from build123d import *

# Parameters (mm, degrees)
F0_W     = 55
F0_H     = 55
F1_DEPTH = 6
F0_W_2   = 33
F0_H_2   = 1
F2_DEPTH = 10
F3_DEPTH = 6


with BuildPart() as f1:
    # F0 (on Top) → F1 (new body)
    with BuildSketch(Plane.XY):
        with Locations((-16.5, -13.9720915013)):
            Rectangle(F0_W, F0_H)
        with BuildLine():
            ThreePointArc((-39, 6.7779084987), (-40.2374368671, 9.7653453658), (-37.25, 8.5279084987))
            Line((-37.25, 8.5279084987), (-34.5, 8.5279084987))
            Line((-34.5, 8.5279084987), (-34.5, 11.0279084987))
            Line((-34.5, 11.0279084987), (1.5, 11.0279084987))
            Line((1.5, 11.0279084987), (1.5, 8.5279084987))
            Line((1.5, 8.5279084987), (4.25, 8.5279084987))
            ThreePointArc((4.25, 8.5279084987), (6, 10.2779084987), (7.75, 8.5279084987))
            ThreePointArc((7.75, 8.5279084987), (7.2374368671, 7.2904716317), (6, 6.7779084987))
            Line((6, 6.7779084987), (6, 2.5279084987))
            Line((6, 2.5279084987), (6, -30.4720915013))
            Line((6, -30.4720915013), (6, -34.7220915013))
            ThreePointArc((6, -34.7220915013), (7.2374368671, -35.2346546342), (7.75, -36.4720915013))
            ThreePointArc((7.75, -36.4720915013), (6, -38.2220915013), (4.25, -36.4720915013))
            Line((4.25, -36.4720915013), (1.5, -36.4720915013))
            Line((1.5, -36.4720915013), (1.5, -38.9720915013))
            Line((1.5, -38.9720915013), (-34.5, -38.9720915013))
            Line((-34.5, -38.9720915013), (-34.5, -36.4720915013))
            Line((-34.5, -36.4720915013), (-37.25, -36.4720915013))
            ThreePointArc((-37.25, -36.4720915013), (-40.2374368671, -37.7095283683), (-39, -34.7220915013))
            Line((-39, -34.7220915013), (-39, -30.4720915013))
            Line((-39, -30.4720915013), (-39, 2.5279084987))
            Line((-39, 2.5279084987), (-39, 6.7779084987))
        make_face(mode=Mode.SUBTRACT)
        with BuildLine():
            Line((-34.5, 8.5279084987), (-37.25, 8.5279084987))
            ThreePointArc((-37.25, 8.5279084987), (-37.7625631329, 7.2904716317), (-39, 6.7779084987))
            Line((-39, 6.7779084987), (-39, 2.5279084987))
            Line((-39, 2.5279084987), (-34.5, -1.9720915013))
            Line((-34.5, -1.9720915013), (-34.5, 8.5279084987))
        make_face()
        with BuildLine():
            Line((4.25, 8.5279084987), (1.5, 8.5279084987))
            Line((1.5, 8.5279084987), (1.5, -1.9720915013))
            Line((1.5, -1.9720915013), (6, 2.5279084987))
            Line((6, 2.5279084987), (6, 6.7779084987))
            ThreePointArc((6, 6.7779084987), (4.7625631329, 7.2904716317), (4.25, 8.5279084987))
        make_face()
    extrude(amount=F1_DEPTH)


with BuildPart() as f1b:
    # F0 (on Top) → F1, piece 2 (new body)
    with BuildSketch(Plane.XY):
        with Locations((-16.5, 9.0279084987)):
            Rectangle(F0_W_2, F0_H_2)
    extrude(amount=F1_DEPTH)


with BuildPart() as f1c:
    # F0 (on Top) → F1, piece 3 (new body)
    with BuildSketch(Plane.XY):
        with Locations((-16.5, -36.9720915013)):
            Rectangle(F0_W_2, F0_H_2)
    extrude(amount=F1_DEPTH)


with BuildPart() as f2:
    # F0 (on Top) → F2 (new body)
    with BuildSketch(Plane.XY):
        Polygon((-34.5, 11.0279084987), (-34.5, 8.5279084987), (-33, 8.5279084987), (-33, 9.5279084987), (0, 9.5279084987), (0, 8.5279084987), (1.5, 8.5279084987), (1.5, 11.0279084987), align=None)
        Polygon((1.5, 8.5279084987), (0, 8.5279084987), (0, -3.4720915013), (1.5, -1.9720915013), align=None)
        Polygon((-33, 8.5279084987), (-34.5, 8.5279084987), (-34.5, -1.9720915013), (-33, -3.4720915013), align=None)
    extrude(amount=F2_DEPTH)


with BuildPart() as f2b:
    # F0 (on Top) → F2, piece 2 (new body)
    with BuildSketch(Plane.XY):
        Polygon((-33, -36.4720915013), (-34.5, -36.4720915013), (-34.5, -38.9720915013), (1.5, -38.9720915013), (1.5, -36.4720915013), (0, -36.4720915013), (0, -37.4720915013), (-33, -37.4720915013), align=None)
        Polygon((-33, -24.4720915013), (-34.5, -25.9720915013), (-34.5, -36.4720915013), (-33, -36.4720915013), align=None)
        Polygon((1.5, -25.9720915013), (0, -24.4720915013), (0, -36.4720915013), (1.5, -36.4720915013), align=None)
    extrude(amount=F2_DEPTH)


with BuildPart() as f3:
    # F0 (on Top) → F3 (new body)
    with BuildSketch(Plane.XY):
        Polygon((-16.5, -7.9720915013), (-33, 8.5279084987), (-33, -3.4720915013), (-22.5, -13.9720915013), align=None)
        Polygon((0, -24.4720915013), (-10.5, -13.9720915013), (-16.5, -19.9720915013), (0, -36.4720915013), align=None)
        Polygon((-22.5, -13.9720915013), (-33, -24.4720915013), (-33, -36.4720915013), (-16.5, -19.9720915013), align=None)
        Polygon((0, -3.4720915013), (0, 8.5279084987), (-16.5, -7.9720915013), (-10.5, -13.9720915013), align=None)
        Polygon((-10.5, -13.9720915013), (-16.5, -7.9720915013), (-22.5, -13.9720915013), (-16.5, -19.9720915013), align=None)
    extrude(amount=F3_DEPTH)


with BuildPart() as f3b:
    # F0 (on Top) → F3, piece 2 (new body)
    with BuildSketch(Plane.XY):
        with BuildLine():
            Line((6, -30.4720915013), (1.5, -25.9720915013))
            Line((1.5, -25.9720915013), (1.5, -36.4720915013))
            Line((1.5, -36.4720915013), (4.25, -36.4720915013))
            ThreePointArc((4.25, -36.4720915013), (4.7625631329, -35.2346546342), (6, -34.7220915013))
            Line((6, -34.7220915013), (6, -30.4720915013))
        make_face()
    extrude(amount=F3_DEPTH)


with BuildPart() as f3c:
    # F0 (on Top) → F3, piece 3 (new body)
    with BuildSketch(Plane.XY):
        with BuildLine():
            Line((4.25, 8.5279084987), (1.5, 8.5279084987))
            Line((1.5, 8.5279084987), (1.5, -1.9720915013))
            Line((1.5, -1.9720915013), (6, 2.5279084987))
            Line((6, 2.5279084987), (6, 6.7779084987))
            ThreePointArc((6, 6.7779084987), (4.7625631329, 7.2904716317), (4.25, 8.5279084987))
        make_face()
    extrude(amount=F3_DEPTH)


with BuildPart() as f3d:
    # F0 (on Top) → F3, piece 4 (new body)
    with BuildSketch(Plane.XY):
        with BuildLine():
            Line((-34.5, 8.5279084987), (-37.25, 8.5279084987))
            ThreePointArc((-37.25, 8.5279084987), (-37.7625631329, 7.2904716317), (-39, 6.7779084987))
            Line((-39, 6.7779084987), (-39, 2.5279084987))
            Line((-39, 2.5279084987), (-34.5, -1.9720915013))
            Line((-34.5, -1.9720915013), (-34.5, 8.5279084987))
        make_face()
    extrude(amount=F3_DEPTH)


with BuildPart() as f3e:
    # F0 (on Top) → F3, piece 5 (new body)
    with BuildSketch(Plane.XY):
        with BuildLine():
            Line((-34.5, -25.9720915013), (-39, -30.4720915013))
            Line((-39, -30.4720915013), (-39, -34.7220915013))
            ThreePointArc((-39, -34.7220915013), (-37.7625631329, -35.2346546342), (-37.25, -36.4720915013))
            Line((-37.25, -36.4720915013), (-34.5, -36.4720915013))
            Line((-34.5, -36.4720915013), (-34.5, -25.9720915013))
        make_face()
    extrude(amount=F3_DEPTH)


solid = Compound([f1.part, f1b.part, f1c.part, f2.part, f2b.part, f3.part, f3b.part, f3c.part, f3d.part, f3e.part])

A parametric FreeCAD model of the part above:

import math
import FreeCAD as App
import Part
import Sketcher

V = App.Vector
Q = App.Units.Quantity


def add_polygon(sketch, points):
    """Adds a closed chain of lines whose ends are joined by coincident constraints."""
    first, n = sketch.GeometryCount, len(points)
    for a, b in zip(points, points[1:] + points[:1]):
        sketch.addGeometry(Part.LineSegment(App.Vector(*a, 0), App.Vector(*b, 0)), False)
    for i in range(n):
        sketch.addConstraint(Sketcher.Constraint("Coincident", first + i, 2, first + (i + 1) % n, 1))

doc = App.newDocument("Part")
body = doc.addObject("PartDesign::Body", "Body")

# Sketch on XY plane
sketch1 = body.newObject("Sketcher::SketchObject", "Sketch")
sketch1.AttachmentSupport = (doc.getObject("XY_Plane"), [""])
sketch1.MapMode = "FlatFace"
add_polygon(sketch1, [(-44, 13.5), (-44, -41.5), (11, -41.5), (11, 13.5)])  # lines 0-3
sketch1.addGeometry(Part.LineSegment(V(-39, -34.7, 0), V(-39, 2.5, 0)), False)  # 4
sketch1.addGeometry(Part.LineSegment(V(-39, 2.5, 0), V(-34.5, -2, 0)), False)  # 5
sketch1.addGeometry(Part.LineSegment(V(-34.5, -2, 0), V(-34.5, 11, 0)), False)  # 6
sketch1.addGeometry(Part.LineSegment(V(-34.5, 11, 0), V(1.5, 11, 0)), False)  # 7
sketch1.addGeometry(Part.LineSegment(V(1.5, 11, 0), V(1.5, -2, 0)), False)  # 8
sketch1.addGeometry(Part.LineSegment(V(1.5, -2, 0), V(6, 2.5, 0)), False)  # 9
sketch1.addGeometry(Part.LineSegment(V(6, 2.5, 0), V(6, -34.7, 0)), False)  # 10
sketch1.addGeometry(Part.ArcOfCircle(Part.Circle(V(6, -36.5, 0), V(0, 0, 1), 1.8), math.radians(0), math.radians(90)), False)  # 11
sketch1.addGeometry(Part.ArcOfCircle(Part.Circle(V(6, -36.5, 0), V(0, 0, 1), 1.8), math.radians(180), math.radians(360)), False)  # 12
sketch1.addGeometry(Part.LineSegment(V(4.2, -36.5, 0), V(1.5, -36.5, 0)), False)  # 13
sketch1.addGeometry(Part.LineSegment(V(1.5, -36.5, 0), V(1.5, -39, 0)), False)  # 14
sketch1.addGeometry(Part.LineSegment(V(1.5, -39, 0), V(-34.5, -39, 0)), False)  # 15
sketch1.addGeometry(Part.LineSegment(V(-34.5, -39, 0), V(-34.5, -36.5, 0)), False)  # 16
sketch1.addGeometry(Part.LineSegment(V(-34.5, -36.5, 0), V(-37.2, -36.5, 0)), False)  # 17
sketch1.addGeometry(Part.ArcOfCircle(Part.Circle(V(-39, -36.5, 0), V(0, 0, 1), 1.8), math.radians(90), math.radians(360)), False)  # 18
sketch1.addGeometry(Part.ArcOfCircle(Part.Circle(V(6, 8.5, 0), V(0, 0, 1), 1.8), math.radians(0), math.radians(180)), False)  # 19
sketch1.addGeometry(Part.ArcOfCircle(Part.Circle(V(6, 8.5, 0), V(0, 0, 1), 1.8), math.radians(-90), math.radians(0)), False)  # 20
sketch1.addGeometry(Part.ArcOfCircle(Part.Circle(V(6, 8.5, 0), V(0, 0, 1), 1.8), math.radians(180), math.radians(270)), False)  # 21
sketch1.addGeometry(Part.ArcOfCircle(Part.Circle(V(-39, 8.5, 0), V(0, 0, 1), 1.8), math.radians(0), math.radians(270)), False)  # 22
sketch1.addGeometry(Part.ArcOfCircle(Part.Circle(V(-39, 8.5, 0), V(0, 0, 1), 1.8), math.radians(-90), math.radians(0)), False)  # 23
sketch1.addConstraint([
    Sketcher.Constraint("Coincident", 4, 2, 5, 1),
    Sketcher.Constraint("Coincident", 5, 2, 6, 1),
    Sketcher.Constraint("Coincident", 6, 2, 7, 1),
    Sketcher.Constraint("Coincident", 7, 2, 8, 1),
    Sketcher.Constraint("Coincident", 8, 2, 9, 1),
    Sketcher.Constraint("Coincident", 9, 2, 10, 1),
    Sketcher.Constraint("Coincident", 10, 2, 11, 2),
    Sketcher.Constraint("Tangent", 11, 1, 12, 2),
    Sketcher.Constraint("Coincident", 12, 1, 13, 1),
    Sketcher.Constraint("Coincident", 13, 2, 14, 1),
    Sketcher.Constraint("Coincident", 14, 2, 15, 1),
    Sketcher.Constraint("Coincident", 15, 2, 16, 1),
    Sketcher.Constraint("Coincident", 16, 2, 17, 1),
    Sketcher.Constraint("Coincident", 17, 2, 18, 2),
    Sketcher.Constraint("Coincident", 18, 1, 4, 1),
    Sketcher.Constraint("Tangent", 19, 1, 20, 2),
    Sketcher.Constraint("Tangent", 20, 1, 21, 2),
    Sketcher.Constraint("Tangent", 21, 1, 19, 2),
    Sketcher.Constraint("Tangent", 22, 1, 23, 2),
    Sketcher.Constraint("Coincident", 23, 1, 22, 2),
    Sketcher.Constraint("Vertical", 0),
    Sketcher.Constraint("Horizontal", 1),
    Sketcher.Constraint("Vertical", 2),
    Sketcher.Constraint("Horizontal", 3),
    Sketcher.Constraint("Vertical", 4),
    Sketcher.Constraint("Vertical", 6),
    Sketcher.Constraint("Horizontal", 7),
    Sketcher.Constraint("Vertical", 8),
    Sketcher.Constraint("Vertical", 10),
    Sketcher.Constraint("Horizontal", 13),
    Sketcher.Constraint("Vertical", 14),
    Sketcher.Constraint("Horizontal", 15),
    Sketcher.Constraint("Vertical", 16),
    Sketcher.Constraint("Horizontal", 17),
    Sketcher.Constraint("Equal", 11, 12),
    Sketcher.Constraint("Equal", 12, 18),
    Sketcher.Constraint("Equal", 18, 19),
    Sketcher.Constraint("Equal", 21, 22),
    Sketcher.Constraint("Perpendicular", 5, 9),
    Sketcher.Constraint("Horizontal", 12, 3, 18, 3),
    Sketcher.Constraint("Horizontal", 21, 3, 22, 3),
    Sketcher.Constraint("Horizontal", 5, 2, 8, 2),
    Sketcher.Constraint("Horizontal", 4, 2, 9, 2),
    Sketcher.Constraint("Horizontal", 18, 3, 11, 1),
    Sketcher.Constraint("Horizontal", 11, 1, 12, 1),
    Sketcher.Constraint("Horizontal", 13, 2, 16, 2),
    Sketcher.Constraint("Horizontal", 23, 3, 19, 1),
    Sketcher.Constraint("Horizontal", 19, 1, 21, 1),
    Sketcher.Constraint("Horizontal", 21, 1, 22, 1),
    Sketcher.Constraint("Vertical", 12, 3, 19, 3),
    Sketcher.Constraint("Vertical", 18, 3, 22, 3),
    Sketcher.Constraint("Vertical", 23, 3, 4, 2),
    Sketcher.Constraint("Vertical", 21, 3, 9, 2),
    Sketcher.Constraint("Vertical", 8, 2, 13, 2),
    Sketcher.Constraint("Vertical", 6, 2, 15, 2),
    Sketcher.Constraint("Vertical", 10, 2, 20, 1),
    Sketcher.Constraint("Vertical", 18, 1, 23, 1),
    Sketcher.Constraint("Equal", 13, 17),
    Sketcher.Constraint("Equal", 3, 0),
    Sketcher.Constraint("DistanceX", 1, 1, 1, 2, 55.0),
    Sketcher.Constraint("DistanceX", 7, 1, 7, 2, 36.0),
    Sketcher.Constraint("DistanceY", 6, 1, 6, 2, 13.0),
    Sketcher.Constraint("Radius", 11, 1.75),
    Sketcher.Constraint("DistanceY", 14, 2, 14, 1, 2.5),
    Sketcher.Constraint("DistanceX", -1, 1, 11, 3, 6.0),
    Sketcher.Constraint("DistanceX", 18, 3, -1, 1, 39.0),
    Sketcher.Constraint("DistanceX", 0, 2, -1, 1, 44.0),
    Sketcher.Constraint("DistanceY", 11, 3, 19, 3, 45.0),
    Sketcher.Constraint("DistanceY", 0, 2, 18, 3, 5.0),
    Sketcher.Constraint("DistanceY", 4, 2, 22, 3, 6.0),
    Sketcher.Constraint("DistanceY", 11, 3, -1, 1, 36.472092),
])
pad1 = body.newObject("PartDesign::Pad", "Pad")
pad1.Profile = sketch1
pad1.Length = 6
body2 = doc.addObject("PartDesign::Body", "Body001")

# Sketch on XY plane
sketch2 = body2.newObject("Sketcher::SketchObject", "Sketch001")
sketch2.AttachmentSupport = (doc.getObject("XY_Plane001"), [""])
sketch2.MapMode = "FlatFace"
add_polygon(sketch2, [(-33, 9.5), (-33, 8.5), (0, 8.5), (0, 9.5)])  # lines 0-3
sketch2.addConstraint([
    Sketcher.Constraint("Vertical", 0),
    Sketcher.Constraint("Horizontal", 1),
    Sketcher.Constraint("Vertical", 2),
    Sketcher.Constraint("Horizontal", 3),
    Sketcher.Constraint("PointOnObject", 1, 2, -2),
    Sketcher.Constraint("DistanceX", 1, 1, 1, 2, 33.0),
    Sketcher.Constraint("DistanceY", 0, 2, 0, 1, 1.0),
    Sketcher.Constraint("DistanceY", -1, 1, 0, 2, 8.527908),
])
pad2 = body2.newObject("PartDesign::Pad", "Pad001")
pad2.Profile = sketch2
pad2.Length = 6
body3 = doc.addObject("PartDesign::Body", "Body002")

# Sketch on XY plane
sketch3 = body3.newObject("Sketcher::SketchObject", "Sketch002")
sketch3.AttachmentSupport = (doc.getObject("XY_Plane002"), [""])
sketch3.MapMode = "FlatFace"
add_polygon(sketch3, [(-33, -36.5), (-33, -37.5), (0, -37.5), (0, -36.5)])  # lines 0-3
sketch3.addConstraint([
    Sketcher.Constraint("Vertical", 0),
    Sketcher.Constraint("Horizontal", 1),
    Sketcher.Constraint("Vertical", 2),
    Sketcher.Constraint("Horizontal", 3),
    Sketcher.Constraint("PointOnObject", 1, 2, -2),
    Sketcher.Constraint("DistanceX", 1, 1, 1, 2, 33.0),
    Sketcher.Constraint("DistanceY", 0, 2, 0, 1, 1.0),
    Sketcher.Constraint("DistanceY", 0, 2, -1, 1, 37.472092),
])
pad3 = body3.newObject("PartDesign::Pad", "Pad002")
pad3.Profile = sketch3
pad3.Length = 6
body4 = doc.addObject("PartDesign::Body", "Body003")

# Sketch on XY plane
sketch4 = body4.newObject("Sketcher::SketchObject", "Sketch003")
sketch4.AttachmentSupport = (doc.getObject("XY_Plane003"), [""])
sketch4.MapMode = "FlatFace"
add_polygon(sketch4, [(-34.5, 11), (-34.5, -2), (-33, -3.5), (-33, 9.5), (0, 9.5), (0, -3.5), (1.5, -2), (1.5, 11)])  # lines 0-7
sketch4.addConstraint([
    Sketcher.Constraint("Vertical", 0),
    Sketcher.Constraint("Vertical", 2),
    Sketcher.Constraint("Horizontal", 3),
    Sketcher.Constraint("Vertical", 4),
    Sketcher.Constraint("Vertical", 6),
    Sketcher.Constraint("Horizontal", 7),
    Sketcher.Constraint("PointOnObject", 3, 2, -2),
    Sketcher.Constraint("Perpendicular", 1, 5),
    Sketcher.Constraint("Horizontal", 1, 2, 4, 2),
    Sketcher.Constraint("Horizontal", 0, 2, 5, 2),
    Sketcher.Constraint("Equal", 0, 2),
    Sketcher.Constraint("Equal", 1, 5),
    Sketcher.Constraint("DistanceX", 3, 1, 3, 2, 33.0),
    Sketcher.Constraint("DistanceX", 7, 2, 7, 1, 36.0),
    Sketcher.Constraint("DistanceY", 0, 2, 0, 1, 13.0),
    Sketcher.Constraint("DistanceY", 0, 2, -1, 1, 1.972092),
])
pad4 = body4.newObject("PartDesign::Pad", "Pad003")
pad4.Profile = sketch4
pad4.Length = 10
body5 = doc.addObject("PartDesign::Body", "Body004")

# Sketch on XY plane
sketch5 = body5.newObject("Sketcher::SketchObject", "Sketch004")
sketch5.AttachmentSupport = (doc.getObject("XY_Plane004"), [""])
sketch5.MapMode = "FlatFace"
add_polygon(sketch5, [(-34.5, -39), (1.5, -39), (1.5, -26), (0, -24.5), (0, -37.5), (-33, -37.5), (-33, -24.5), (-34.5, -26)])  # lines 0-7
sketch5.addConstraint([
    Sketcher.Constraint("Horizontal", 0),
    Sketcher.Constraint("Vertical", 1),
    Sketcher.Constraint("Vertical", 3),
    Sketcher.Constraint("Horizontal", 4),
    Sketcher.Constraint("Vertical", 5),
    Sketcher.Constraint("Vertical", 7),
    Sketcher.Constraint("PointOnObject", 2, 2, -2),
    Sketcher.Constraint("Perpendicular", 2, 6),
    Sketcher.Constraint("Horizontal", 2, 2, 5, 2),
    Sketcher.Constraint("Horizontal", 1, 2, 6, 2),
    Sketcher.Constraint("Equal", 1, 3),
    Sketcher.Constraint("Equal", 2, 6),
    Sketcher.Constraint("DistanceX", 0, 1, 0, 2, 36.0),
    Sketcher.Constraint("DistanceX", 4, 2, 4, 1, 33.0),
    Sketcher.Constraint("DistanceY", 1, 1, 1, 2, 13.0),
    Sketcher.Constraint("DistanceY", 0, 2, -1, 1, 38.972092),
])
pad5 = body5.newObject("PartDesign::Pad", "Pad004")
pad5.Profile = sketch5
pad5.Length = 10
body6 = doc.addObject("PartDesign::Body", "Body005")

# Sketch on XY plane
sketch6 = body6.newObject("Sketcher::SketchObject", "Sketch005")
sketch6.AttachmentSupport = (doc.getObject("XY_Plane005"), [""])
sketch6.MapMode = "FlatFace"
add_polygon(sketch6, [(-16, -8), (-33, 9), (-33, -3), (-22, -14), (-33, -24), (-33, -36), (-16, -20), (0, -36), (0, -24), (-10, -14), (0, -3), (0, 9)])  # lines 0-11
sketch6.addConstraint([
    Sketcher.Constraint("Vertical", 1),
    Sketcher.Constraint("Vertical", 4),
    Sketcher.Constraint("Vertical", 7),
    Sketcher.Constraint("Vertical", 10),
    Sketcher.Constraint("PointOnObject", 6, 2, -2),
    Sketcher.Constraint("PointOnObject", 9, 2, -2),
    Sketcher.Constraint("Parallel", 0, 2),
    Sketcher.Constraint("Perpendicular", 2, 3),
    Sketcher.Constraint("Parallel", 3, 5),
    Sketcher.Constraint("Perpendicular", 5, 6),
    Sketcher.Constraint("Parallel", 6, 8),
    Sketcher.Constraint("Perpendicular", 8, 9),
    Sketcher.Constraint("Parallel", 9, 11),
    Sketcher.Constraint("Horizontal", 4, 2, 6, 2),
    Sketcher.Constraint("Horizontal", 3, 2, 7, 2),
    Sketcher.Constraint("Horizontal", 2, 2, 8, 2),
    Sketcher.Constraint("Horizontal", 1, 2, 9, 2),
    Sketcher.Constraint("Horizontal", 0, 2, 10, 2),
    Sketcher.Constraint("Vertical", 1, 2, 3, 2),
    Sketcher.Constraint("Equal", 1, 4),
    Sketcher.Constraint("DistanceY", 1, 2, 1, 1, 12.0),
    Sketcher.Constraint("DistanceX", 0, 2, -1, 1, 33.0),
    Sketcher.Constraint("DistanceY", 3, 2, 1, 2, 21.0),
    Sketcher.Constraint("DistanceY", -1, 1, 0, 2, 8.527908),
])
pad6 = body6.newObject("PartDesign::Pad", "Pad005")
pad6.Profile = sketch6
pad6.Length = 6
body7 = doc.addObject("PartDesign::Body", "Body006")

# Sketch on XY plane
sketch7 = body7.newObject("Sketcher::SketchObject", "Sketch006")
sketch7.AttachmentSupport = (doc.getObject("XY_Plane006"), [""])
sketch7.MapMode = "FlatFace"
sketch7.addGeometry([
    Part.LineSegment(V(6, -30.5, 0), V(1.5, -26, 0)),  # 0
    Part.LineSegment(V(1.5, -26, 0), V(1.5, -36.5, 0)),  # 1
    Part.LineSegment(V(1.5, -36.5, 0), V(4.2, -36.5, 0)),  # 2
    Part.ArcOfCircle(Part.Circle(V(6, -36.5, 0), V(0, 0, 1), 1.8), math.radians(90), math.radians(180)),  # 3
    Part.LineSegment(V(6, -34.7, 0), V(6, -30.5, 0)),  # 4
], False)
sketch7.addConstraint([
    Sketcher.Constraint("Coincident", 0, 2, 1, 1),
    Sketcher.Constraint("Coincident", 1, 2, 2, 1),
    Sketcher.Constraint("Coincident", 2, 2, 3, 2),
    Sketcher.Constraint("Coincident", 3, 1, 4, 1),
    Sketcher.Constraint("Coincident", 4, 2, 0, 1),
    Sketcher.Constraint("Vertical", 1),
    Sketcher.Constraint("Horizontal", 2),
    Sketcher.Constraint("Vertical", 4),
    Sketcher.Constraint("Horizontal", 3, 3, 1, 2),
    Sketcher.Constraint("Angle", 0, Q("135 deg")),
    Sketcher.Constraint("Radius", 3, 1.75),
    Sketcher.Constraint("DistanceY", 1, 2, 1, 1, 10.5),
    Sketcher.Constraint("DistanceX", -1, 1, 3, 3, 6.0),
    Sketcher.Constraint("DistanceX", -1, 1, 3, 1, 6.0),
    Sketcher.Constraint("DistanceY", 3, 3, 4, 2, 6.0),
    Sketcher.Constraint("DistanceY", 3, 3, -1, 1, 36.472092),
])
pad7 = body7.newObject("PartDesign::Pad", "Pad006")
pad7.Profile = sketch7
pad7.Length = 6
body8 = doc.addObject("PartDesign::Body", "Body007")

# Sketch on XY plane
sketch8 = body8.newObject("Sketcher::SketchObject", "Sketch007")
sketch8.AttachmentSupport = (doc.getObject("XY_Plane007"), [""])
sketch8.MapMode = "FlatFace"
sketch8.addGeometry([
    Part.LineSegment(V(4.2, 8.5, 0), V(1.5, 8.5, 0)),  # 0
    Part.LineSegment(V(1.5, 8.5, 0), V(1.5, -2, 0)),  # 1
    Part.LineSegment(V(1.5, -2, 0), V(6, 2.5, 0)),  # 2
    Part.LineSegment(V(6, 2.5, 0), V(6, 6.8, 0)),  # 3
    Part.ArcOfCircle(Part.Circle(V(6, 8.5, 0), V(0, 0, 1), 1.8), math.radians(180), math.radians(270)),  # 4
], False)
sketch8.addConstraint([
    Sketcher.Constraint("Coincident", 0, 2, 1, 1),
    Sketcher.Constraint("Coincident", 1, 2, 2, 1),
    Sketcher.Constraint("Coincident", 2, 2, 3, 1),
    Sketcher.Constraint("Coincident", 3, 2, 4, 2),
    Sketcher.Constraint("Coincident", 4, 1, 0, 1),
    Sketcher.Constraint("Horizontal", 0),
    Sketcher.Constraint("Vertical", 1),
    Sketcher.Constraint("Vertical", 3),
    Sketcher.Constraint("Horizontal", 4, 3, 0, 2),
    Sketcher.Constraint("Vertical", 4, 3, 2, 2),
    Sketcher.Constraint("Angle", 2, Q("45 deg")),
    Sketcher.Constraint("Radius", 4, 1.75),
    Sketcher.Constraint("DistanceY", 1, 2, 1, 1, 10.5),
    Sketcher.Constraint("DistanceX", -1, 1, 4, 3, 6.0),
    Sketcher.Constraint("DistanceY", 2, 2, 4, 3, 6.0),
    Sketcher.Constraint("DistanceY", -1, 1, 4, 3, 8.527908),
])
pad8 = body8.newObject("PartDesign::Pad", "Pad007")
pad8.Profile = sketch8
pad8.Length = 6
body9 = doc.addObject("PartDesign::Body", "Body008")

# Sketch on XY plane
sketch9 = body9.newObject("Sketcher::SketchObject", "Sketch008")
sketch9.AttachmentSupport = (doc.getObject("XY_Plane008"), [""])
sketch9.MapMode = "FlatFace"
sketch9.addGeometry([
    Part.LineSegment(V(-34.5, 8.5, 0), V(-37.2, 8.5, 0)),  # 0
    Part.ArcOfCircle(Part.Circle(V(-39, 8.5, 0), V(0, 0, 1), 1.8), math.radians(-90), math.radians(0)),  # 1
    Part.LineSegment(V(-39, 6.8, 0), V(-39, 2.5, 0)),  # 2
    Part.LineSegment(V(-39, 2.5, 0), V(-34.5, -2, 0)),  # 3
    Part.LineSegment(V(-34.5, -2, 0), V(-34.5, 8.5, 0)),  # 4
], False)
sketch9.addConstraint([
    Sketcher.Constraint("Coincident", 0, 2, 1, 2),
    Sketcher.Constraint("Coincident", 1, 1, 2, 1),
    Sketcher.Constraint("Coincident", 2, 2, 3, 1),
    Sketcher.Constraint("Coincident", 3, 2, 4, 1),
    Sketcher.Constraint("Coincident", 4, 2, 0, 1),
    Sketcher.Constraint("Horizontal", 0),
    Sketcher.Constraint("Vertical", 2),
    Sketcher.Constraint("Vertical", 4),
    Sketcher.Constraint("Horizontal", 1, 3, 0, 2),
    Sketcher.Constraint("Angle", 3, Q("-45 deg")),
    Sketcher.Constraint("Radius", 1, 1.75),
    Sketcher.Constraint("DistanceY", 4, 1, 4, 2, 10.5),
    Sketcher.Constraint("DistanceX", 1, 3, -1, 1, 39.0),
    Sketcher.Constraint("DistanceX", 1, 1, -1, 1, 39.0),
    Sketcher.Constraint("DistanceY", 2, 2, 1, 3, 6.0),
    Sketcher.Constraint("DistanceY", -1, 1, 1, 3, 8.527908),
])
pad9 = body9.newObject("PartDesign::Pad", "Pad008")
pad9.Profile = sketch9
pad9.Length = 6
body10 = doc.addObject("PartDesign::Body", "Body009")

# Sketch on XY plane
sketch10 = body10.newObject("Sketcher::SketchObject", "Sketch009")
sketch10.AttachmentSupport = (doc.getObject("XY_Plane009"), [""])
sketch10.MapMode = "FlatFace"
sketch10.addGeometry([
    Part.LineSegment(V(-34.5, -26, 0), V(-39, -30.5, 0)),  # 0
    Part.LineSegment(V(-39, -30.5, 0), V(-39, -34.7, 0)),  # 1
    Part.ArcOfCircle(Part.Circle(V(-39, -36.5, 0), V(0, 0, 1), 1.8), math.radians(0), math.radians(90)),  # 2
    Part.LineSegment(V(-37.2, -36.5, 0), V(-34.5, -36.5, 0)),  # 3
    Part.LineSegment(V(-34.5, -36.5, 0), V(-34.5, -26, 0)),  # 4
], False)
sketch10.addConstraint([
    Sketcher.Constraint("Coincident", 0, 2, 1, 1),
    Sketcher.Constraint("Coincident", 1, 2, 2, 2),
    Sketcher.Constraint("Coincident", 2, 1, 3, 1),
    Sketcher.Constraint("Coincident", 3, 2, 4, 1),
    Sketcher.Constraint("Coincident", 4, 2, 0, 1),
    Sketcher.Constraint("Vertical", 1),
    Sketcher.Constraint("Horizontal", 3),
    Sketcher.Constraint("Vertical", 4),
    Sketcher.Constraint("Vertical", 2, 3, 0, 2),
    Sketcher.Constraint("Angle", 0, Q("-135 deg")),
    Sketcher.Constraint("Radius", 2, 1.75),
    Sketcher.Constraint("DistanceY", 4, 1, 4, 2, 10.5),
    Sketcher.Constraint("DistanceX", 2, 3, -1, 1, 39.0),
    Sketcher.Constraint("DistanceY", 2, 3, 0, 2, 6.0),
    Sketcher.Constraint("DistanceY", 2, 1, 0, 2, 6.0),
    Sketcher.Constraint("DistanceY", 2, 3, -1, 1, 36.472092),
])
pad10 = body10.newObject("PartDesign::Pad", "Pad009")
pad10.Profile = sketch10
pad10.Length = 6

doc.recompute()
